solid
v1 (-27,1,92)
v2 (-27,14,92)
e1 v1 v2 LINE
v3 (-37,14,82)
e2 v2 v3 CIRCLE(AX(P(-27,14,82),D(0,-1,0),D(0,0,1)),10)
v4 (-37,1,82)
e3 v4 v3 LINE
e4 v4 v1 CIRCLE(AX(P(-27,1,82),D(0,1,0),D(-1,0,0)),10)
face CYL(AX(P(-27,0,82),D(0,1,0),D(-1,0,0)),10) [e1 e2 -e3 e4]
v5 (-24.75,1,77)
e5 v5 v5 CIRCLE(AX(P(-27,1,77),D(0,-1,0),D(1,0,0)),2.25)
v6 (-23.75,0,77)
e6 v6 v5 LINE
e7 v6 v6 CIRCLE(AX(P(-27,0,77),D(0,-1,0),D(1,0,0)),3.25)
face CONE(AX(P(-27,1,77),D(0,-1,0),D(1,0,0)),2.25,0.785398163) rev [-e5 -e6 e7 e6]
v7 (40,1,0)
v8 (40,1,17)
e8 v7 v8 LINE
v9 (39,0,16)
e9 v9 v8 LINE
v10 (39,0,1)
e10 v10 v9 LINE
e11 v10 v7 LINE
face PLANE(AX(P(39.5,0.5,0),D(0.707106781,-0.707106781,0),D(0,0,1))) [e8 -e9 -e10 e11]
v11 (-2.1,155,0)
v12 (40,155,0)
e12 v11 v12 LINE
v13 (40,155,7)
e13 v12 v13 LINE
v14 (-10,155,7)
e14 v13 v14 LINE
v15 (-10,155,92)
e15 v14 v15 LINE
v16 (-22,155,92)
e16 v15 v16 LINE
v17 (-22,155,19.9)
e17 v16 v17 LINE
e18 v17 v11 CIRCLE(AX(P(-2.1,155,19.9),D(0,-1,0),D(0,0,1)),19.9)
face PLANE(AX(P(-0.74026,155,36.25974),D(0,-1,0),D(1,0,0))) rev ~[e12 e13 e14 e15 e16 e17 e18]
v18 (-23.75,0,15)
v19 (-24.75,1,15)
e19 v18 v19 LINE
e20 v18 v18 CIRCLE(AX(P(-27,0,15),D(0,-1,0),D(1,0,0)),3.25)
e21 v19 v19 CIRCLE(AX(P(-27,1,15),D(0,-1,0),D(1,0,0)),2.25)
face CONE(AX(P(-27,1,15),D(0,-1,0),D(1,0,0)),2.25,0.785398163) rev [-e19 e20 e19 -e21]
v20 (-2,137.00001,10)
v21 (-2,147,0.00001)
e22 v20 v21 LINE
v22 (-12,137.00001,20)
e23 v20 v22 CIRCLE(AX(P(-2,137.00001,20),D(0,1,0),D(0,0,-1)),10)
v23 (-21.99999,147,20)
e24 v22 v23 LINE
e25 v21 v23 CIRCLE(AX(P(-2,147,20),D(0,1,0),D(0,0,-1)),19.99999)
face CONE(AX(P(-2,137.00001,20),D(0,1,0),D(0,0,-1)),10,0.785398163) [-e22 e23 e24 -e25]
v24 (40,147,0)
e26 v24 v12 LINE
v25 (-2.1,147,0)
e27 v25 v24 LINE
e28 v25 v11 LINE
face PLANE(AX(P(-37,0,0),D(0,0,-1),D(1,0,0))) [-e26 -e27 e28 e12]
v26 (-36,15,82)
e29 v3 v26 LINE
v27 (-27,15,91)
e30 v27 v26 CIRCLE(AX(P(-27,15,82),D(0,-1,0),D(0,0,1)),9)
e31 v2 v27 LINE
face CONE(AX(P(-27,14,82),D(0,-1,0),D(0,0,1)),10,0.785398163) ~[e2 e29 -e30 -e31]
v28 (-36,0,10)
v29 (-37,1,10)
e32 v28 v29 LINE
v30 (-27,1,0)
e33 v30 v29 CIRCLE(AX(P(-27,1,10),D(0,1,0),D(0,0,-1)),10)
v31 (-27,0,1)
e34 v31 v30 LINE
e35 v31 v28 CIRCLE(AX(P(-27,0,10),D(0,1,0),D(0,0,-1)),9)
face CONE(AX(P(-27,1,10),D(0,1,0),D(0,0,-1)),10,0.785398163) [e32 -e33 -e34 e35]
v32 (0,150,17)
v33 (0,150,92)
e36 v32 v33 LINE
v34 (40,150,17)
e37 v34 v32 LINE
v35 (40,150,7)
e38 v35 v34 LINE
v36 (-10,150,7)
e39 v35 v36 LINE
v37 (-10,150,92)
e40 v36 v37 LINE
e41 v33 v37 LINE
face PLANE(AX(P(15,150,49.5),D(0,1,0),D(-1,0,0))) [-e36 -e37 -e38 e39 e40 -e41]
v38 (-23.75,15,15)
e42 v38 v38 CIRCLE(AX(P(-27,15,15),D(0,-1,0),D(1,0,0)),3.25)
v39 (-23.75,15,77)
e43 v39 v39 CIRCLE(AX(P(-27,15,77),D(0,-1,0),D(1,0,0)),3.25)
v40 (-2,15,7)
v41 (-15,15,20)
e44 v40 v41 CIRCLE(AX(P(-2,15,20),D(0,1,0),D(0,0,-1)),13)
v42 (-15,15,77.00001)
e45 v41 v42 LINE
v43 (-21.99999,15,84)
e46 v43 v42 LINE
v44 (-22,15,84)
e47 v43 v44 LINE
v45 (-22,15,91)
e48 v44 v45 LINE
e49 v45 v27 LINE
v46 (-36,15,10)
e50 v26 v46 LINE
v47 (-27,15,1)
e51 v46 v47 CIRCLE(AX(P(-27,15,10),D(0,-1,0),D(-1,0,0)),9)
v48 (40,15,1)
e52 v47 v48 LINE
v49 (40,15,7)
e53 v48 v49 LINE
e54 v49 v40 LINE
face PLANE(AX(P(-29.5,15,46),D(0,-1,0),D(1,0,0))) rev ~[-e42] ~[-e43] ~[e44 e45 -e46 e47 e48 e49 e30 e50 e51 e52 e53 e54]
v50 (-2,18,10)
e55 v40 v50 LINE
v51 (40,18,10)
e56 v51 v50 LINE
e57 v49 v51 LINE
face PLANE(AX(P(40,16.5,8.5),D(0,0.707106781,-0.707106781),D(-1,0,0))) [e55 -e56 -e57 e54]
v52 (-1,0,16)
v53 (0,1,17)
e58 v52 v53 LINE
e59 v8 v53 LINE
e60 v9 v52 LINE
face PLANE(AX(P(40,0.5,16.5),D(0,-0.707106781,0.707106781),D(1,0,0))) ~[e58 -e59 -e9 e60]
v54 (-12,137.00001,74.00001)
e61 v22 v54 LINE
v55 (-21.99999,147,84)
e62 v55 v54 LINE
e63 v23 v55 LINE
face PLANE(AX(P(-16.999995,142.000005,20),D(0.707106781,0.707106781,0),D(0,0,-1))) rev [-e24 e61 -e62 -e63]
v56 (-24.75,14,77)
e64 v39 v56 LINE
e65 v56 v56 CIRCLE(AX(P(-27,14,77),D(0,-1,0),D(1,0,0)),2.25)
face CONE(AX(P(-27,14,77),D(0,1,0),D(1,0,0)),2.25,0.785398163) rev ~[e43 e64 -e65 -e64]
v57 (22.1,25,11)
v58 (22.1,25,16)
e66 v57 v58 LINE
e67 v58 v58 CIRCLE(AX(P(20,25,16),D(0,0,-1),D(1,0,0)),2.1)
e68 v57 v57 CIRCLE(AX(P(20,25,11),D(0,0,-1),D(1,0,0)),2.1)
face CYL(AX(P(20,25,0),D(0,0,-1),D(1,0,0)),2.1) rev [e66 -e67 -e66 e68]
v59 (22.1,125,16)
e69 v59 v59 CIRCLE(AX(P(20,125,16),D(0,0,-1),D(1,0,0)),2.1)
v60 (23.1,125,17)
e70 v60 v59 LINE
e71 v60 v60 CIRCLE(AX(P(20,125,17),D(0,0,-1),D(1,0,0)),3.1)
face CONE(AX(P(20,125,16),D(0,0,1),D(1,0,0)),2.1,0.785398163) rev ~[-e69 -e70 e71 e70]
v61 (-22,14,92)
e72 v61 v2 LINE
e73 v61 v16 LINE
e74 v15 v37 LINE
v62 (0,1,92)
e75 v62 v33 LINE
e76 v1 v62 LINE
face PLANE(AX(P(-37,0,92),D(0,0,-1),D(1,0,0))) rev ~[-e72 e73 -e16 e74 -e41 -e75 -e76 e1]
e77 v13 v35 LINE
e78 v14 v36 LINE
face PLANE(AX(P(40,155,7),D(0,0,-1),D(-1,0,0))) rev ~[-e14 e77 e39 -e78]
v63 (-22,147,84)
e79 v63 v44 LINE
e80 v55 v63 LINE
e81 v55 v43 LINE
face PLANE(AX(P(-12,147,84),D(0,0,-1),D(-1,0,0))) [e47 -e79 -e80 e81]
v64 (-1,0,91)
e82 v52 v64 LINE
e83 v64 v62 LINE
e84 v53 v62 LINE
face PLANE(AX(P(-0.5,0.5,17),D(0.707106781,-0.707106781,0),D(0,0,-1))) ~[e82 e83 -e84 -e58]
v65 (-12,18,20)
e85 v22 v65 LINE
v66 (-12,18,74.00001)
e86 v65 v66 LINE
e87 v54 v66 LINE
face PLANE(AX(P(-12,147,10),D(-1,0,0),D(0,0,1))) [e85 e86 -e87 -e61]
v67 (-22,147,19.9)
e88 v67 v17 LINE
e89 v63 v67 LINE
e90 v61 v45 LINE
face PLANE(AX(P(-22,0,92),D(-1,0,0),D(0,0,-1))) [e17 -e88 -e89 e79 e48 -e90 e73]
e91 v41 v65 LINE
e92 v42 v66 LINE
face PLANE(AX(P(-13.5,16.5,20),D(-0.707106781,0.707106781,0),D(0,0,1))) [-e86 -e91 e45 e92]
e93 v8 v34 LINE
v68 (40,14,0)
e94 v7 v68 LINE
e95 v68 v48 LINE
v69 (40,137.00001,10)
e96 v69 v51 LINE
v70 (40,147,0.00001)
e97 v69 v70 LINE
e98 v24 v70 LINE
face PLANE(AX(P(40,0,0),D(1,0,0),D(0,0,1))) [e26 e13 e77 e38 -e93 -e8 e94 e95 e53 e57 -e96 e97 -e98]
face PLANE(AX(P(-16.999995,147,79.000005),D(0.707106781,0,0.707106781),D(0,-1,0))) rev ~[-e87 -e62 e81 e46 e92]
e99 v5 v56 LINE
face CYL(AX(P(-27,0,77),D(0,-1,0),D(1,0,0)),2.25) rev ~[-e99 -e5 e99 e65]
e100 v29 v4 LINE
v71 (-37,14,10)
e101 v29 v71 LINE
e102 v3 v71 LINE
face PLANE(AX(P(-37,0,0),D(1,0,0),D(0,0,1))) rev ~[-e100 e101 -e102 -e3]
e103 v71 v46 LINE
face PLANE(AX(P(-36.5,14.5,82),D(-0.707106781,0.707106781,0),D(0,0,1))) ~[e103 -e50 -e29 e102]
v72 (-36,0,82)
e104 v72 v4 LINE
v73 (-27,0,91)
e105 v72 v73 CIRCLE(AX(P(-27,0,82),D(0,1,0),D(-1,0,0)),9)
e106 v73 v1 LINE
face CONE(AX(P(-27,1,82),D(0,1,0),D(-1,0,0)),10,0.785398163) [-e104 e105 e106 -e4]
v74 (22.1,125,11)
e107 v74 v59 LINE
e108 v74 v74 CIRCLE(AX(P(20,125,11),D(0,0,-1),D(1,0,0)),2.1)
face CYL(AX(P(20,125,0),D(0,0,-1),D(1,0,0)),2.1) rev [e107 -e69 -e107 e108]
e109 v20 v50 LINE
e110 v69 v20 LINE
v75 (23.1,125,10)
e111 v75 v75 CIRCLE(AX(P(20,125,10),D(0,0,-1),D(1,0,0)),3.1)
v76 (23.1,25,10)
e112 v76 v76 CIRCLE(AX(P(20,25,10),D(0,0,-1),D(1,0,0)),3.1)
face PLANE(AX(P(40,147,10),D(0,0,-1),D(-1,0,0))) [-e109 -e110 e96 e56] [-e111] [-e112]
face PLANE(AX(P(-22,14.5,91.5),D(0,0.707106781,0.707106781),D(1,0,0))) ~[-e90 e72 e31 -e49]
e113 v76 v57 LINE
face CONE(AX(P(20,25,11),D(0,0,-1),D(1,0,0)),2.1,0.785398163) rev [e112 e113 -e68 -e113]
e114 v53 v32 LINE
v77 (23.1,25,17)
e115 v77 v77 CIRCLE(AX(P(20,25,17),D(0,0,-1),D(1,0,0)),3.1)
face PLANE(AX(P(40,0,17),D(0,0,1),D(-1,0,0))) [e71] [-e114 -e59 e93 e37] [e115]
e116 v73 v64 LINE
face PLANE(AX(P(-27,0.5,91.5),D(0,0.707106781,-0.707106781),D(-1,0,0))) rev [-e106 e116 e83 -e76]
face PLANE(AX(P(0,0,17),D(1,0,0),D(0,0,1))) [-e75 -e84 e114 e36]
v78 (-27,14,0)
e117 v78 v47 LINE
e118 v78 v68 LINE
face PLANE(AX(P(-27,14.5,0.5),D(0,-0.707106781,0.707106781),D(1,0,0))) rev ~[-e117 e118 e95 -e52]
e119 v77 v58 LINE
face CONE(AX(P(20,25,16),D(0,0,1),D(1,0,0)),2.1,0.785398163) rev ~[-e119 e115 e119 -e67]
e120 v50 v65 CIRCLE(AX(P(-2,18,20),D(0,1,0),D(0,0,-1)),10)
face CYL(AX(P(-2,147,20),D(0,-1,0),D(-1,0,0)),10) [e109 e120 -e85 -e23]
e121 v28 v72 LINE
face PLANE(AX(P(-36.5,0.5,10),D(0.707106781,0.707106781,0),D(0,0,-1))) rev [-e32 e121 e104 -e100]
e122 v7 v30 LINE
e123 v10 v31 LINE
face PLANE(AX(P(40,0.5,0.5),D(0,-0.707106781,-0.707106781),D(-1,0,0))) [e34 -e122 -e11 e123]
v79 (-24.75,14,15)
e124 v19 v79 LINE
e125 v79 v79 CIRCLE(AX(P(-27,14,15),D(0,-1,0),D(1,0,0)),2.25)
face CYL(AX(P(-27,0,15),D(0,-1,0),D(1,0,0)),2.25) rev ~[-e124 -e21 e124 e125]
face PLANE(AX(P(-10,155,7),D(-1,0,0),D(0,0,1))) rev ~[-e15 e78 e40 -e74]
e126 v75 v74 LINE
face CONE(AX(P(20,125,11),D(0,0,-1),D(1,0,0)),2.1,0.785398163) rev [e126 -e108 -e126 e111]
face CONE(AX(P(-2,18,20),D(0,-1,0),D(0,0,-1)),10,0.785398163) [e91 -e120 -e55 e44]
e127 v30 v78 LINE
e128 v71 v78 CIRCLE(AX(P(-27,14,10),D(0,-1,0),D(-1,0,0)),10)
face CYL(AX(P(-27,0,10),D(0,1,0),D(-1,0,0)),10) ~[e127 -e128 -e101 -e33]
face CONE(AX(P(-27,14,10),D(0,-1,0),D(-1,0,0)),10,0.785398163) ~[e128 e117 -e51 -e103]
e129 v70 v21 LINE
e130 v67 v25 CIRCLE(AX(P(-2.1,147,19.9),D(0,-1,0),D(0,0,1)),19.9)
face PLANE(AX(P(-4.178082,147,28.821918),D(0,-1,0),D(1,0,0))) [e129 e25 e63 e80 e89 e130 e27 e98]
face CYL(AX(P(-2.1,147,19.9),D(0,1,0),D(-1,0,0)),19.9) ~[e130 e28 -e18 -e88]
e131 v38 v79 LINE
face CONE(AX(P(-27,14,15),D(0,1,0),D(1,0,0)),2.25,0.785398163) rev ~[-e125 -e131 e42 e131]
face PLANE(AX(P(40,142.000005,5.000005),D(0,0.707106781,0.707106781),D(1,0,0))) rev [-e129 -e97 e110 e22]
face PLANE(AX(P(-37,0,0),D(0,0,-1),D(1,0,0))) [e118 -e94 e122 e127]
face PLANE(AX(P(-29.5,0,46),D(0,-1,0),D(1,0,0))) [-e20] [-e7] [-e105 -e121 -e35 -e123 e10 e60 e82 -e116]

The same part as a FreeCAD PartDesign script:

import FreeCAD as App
import Part
import Sketcher
Q = App.Units.Quantity


def edges_at(feature, points):
    """Names of the edges that pass closest to the given points."""
    edges = feature.Shape.Edges
    near = lambda p: min(range(len(edges)), key=lambda i: edges[i].distToShape(Part.Vertex(*p))[0])
    return sorted({f"Edge{near(p) + 1}" for p in points})

doc = App.newDocument("Part")
body = doc.addObject("PartDesign::Body", "Body")

# Sketch on XZ plane
sketch1 = body.newObject("Sketcher::SketchObject", "Sketch")
sketch1.AttachmentSupport = (doc.getObject("XZ_Plane"), [""])
sketch1.MapMode = "FlatFace"
sketch1.addGeometry([
    Part.LineSegment(App.Vector(40, 0, 0), App.Vector(40, 17, 0)),  # 0
    Part.LineSegment(App.Vector(40, 17, 0), App.Vector(0, 17, 0)),  # 1
    Part.LineSegment(App.Vector(0, 17, 0), App.Vector(0, 92, 0)),  # 2
    Part.LineSegment(App.Vector(0, 92, 0), App.Vector(-22, 92, 0)),  # 3
    Part.LineSegment(App.Vector(-22, 92, 0), App.Vector(-22, 0, 0)),  # 4
    Part.LineSegment(App.Vector(-22, 0, 0), App.Vector(40, 0, 0)),  # 5
], False)
sketch1.addConstraint([
    Sketcher.Constraint("Coincident", 0, 2, 1, 1),
    Sketcher.Constraint("Coincident", 1, 2, 2, 1),
    Sketcher.Constraint("Coincident", 2, 2, 3, 1),
    Sketcher.Constraint("Coincident", 3, 2, 4, 1),
    Sketcher.Constraint("Coincident", 4, 2, 5, 1),
    Sketcher.Constraint("Coincident", 5, 2, 0, 1),
    Sketcher.Constraint("Vertical", 0),
    Sketcher.Constraint("Horizontal", 1),
    Sketcher.Constraint("Vertical", 2),
    Sketcher.Constraint("Horizontal", 3),
    Sketcher.Constraint("Vertical", 4),
    Sketcher.Constraint("Horizontal", 5),
    Sketcher.Constraint("PointOnObject", 1, 2, -2),
    Sketcher.Constraint("PointOnObject", 4, 2, -1),
    Sketcher.Constraint("DistanceX", 1, 2, 1, 1, Q("40 mm")),
    Sketcher.Constraint("DistanceX", 3, 2, 3, 1, Q("22 mm")),
    Sketcher.Constraint("DistanceY", 0, 1, 0, 2, Q("17 mm")),
    Sketcher.Constraint("DistanceY", 2, 1, 2, 2, Q("75 mm")),
])
pad1 = body.newObject("PartDesign::Pad", "Pad")
pad1.Profile = sketch1
pad1.Length = 155
pad1.Reversed = True

# Sketch on XZ plane
sketch2 = body.newObject("Sketcher::SketchObject", "Sketch001")
sketch2.AttachmentSupport = (doc.getObject("XZ_Plane"), [""])
sketch2.MapMode = "FlatFace"
sketch2.addGeometry([
    Part.LineSegment(App.Vector(-37, 92, 0), App.Vector(-37, 0, 0)),  # 0
    Part.LineSegment(App.Vector(-37, 0, 0), App.Vector(-22, 0, 0)),  # 1
    Part.LineSegment(App.Vector(-22, 0, 0), App.Vector(-22, 92, 0)),  # 2
    Part.LineSegment(App.Vector(-22, 92, 0), App.Vector(-37, 92, 0)),  # 3
    Part.Circle(App.Vector(-27, 15, 0), App.Vector(0, 0, 1), 2.2),  # 4
    Part.Circle(App.Vector(-27, 77, 0), App.Vector(0, 0, 1), 2.2),  # 5
], False)
sketch2.addConstraint([
    Sketcher.Constraint("Coincident", 0, 2, 1, 1),
    Sketcher.Constraint("Coincident", 1, 2, 2, 1),
    Sketcher.Constraint("Coincident", 2, 2, 3, 1),
    Sketcher.Constraint("Coincident", 3, 2, 0, 1),
    Sketcher.Constraint("Vertical", 0),
    Sketcher.Constraint("Horizontal", 1),
    Sketcher.Constraint("Vertical", 2),
    Sketcher.Constraint("Horizontal", 3),
    Sketcher.Constraint("Equal", 4, 5),
    Sketcher.Constraint("PointOnObject", 0, 2, -1),
    Sketcher.Constraint("Vertical", 4, 3, 5, 3),
    Sketcher.Constraint("Diameter", 4, Q("4.5 mm")),
    Sketcher.Constraint("DistanceX", 1, 1, 1, 2, Q("15 mm")),
    Sketcher.Constraint("DistanceY", 0, 2, 0, 1, Q("92 mm")),
    Sketcher.Constraint("DistanceX", 4, 3, -1, 1, Q("27 mm")),
    Sketcher.Constraint("DistanceY", -1, 1, 4, 3, Q("15 mm")),
    Sketcher.Constraint("DistanceY", -1, 1, 5, 3, Q("77 mm")),
    Sketcher.Constraint("DistanceX", 0, 2, -1, 1, Q("37 mm")),
])
pad2 = body.newObject("PartDesign::Pad", "Pad001")
pad2.Profile = sketch2
pad2.Length = 15
pad2.Reversed = True

# Sketch on XZ plane
sketch3 = body.newObject("Sketcher::SketchObject", "Sketch002")
sketch3.AttachmentSupport = (doc.getObject("XZ_Plane"), [""])
sketch3.MapMode = "FlatFace"
sketch3.AttachmentOffset = App.Placement(App.Vector(0, 0, -147), App.Rotation())
sketch3.addGeometry([
    Part.LineSegment(App.Vector(40, 10, 0), App.Vector(40, 0, 0)),  # 0
    Part.LineSegment(App.Vector(40, 0, 0), App.Vector(-22, 0, 0)),  # 1
    Part.LineSegment(App.Vector(-22, 0, 0), App.Vector(-22, 84, 0)),  # 2
    Part.LineSegment(App.Vector(-22, 84, 0), App.Vector(-12, 84, 0)),  # 3
    Part.LineSegment(App.Vector(-12, 84, 0), App.Vector(-12, 10, 0)),  # 4
    Part.LineSegment(App.Vector(-12, 10, 0), App.Vector(40, 10, 0)),  # 5
], False)
sketch3.addConstraint([
    Sketcher.Constraint("Coincident", 0, 2, 1, 1),
    Sketcher.Constraint("Coincident", 1, 2, 2, 1),
    Sketcher.Constraint("Coincident", 2, 2, 3, 1),
    Sketcher.Constraint("Coincident", 3, 2, 4, 1),
    Sketcher.Constraint("Coincident", 4, 2, 5, 1),
    Sketcher.Constraint("Coincident", 5, 2, 0, 1),
    Sketcher.Constraint("Vertical", 0),
    Sketcher.Constraint("Horizontal", 1),
    Sketcher.Constraint("Vertical", 2),
    Sketcher.Constraint("Horizontal", 3),
    Sketcher.Constraint("Vertical", 4),
    Sketcher.Constraint("Horizontal", 5),
    Sketcher.Constraint("PointOnObject", 0, 2, -1),
    Sketcher.Constraint("Equal", 3, 0),
    Sketcher.Constraint("DistanceX", 1, 2, 1, 1, Q("62 mm")),
    Sketcher.Constraint("DistanceX", 3, 1, 3, 2, Q("10 mm")),
    Sketcher.Constraint("DistanceY", 2, 1, 2, 2, Q("84 mm")),
    Sketcher.Constraint("DistanceX", -1, 1, 0, 2, Q("40 mm")),
])
pocket1 = body.newObject("PartDesign::Pocket", "Pocket")
pocket1.Profile = sketch3
pocket1.Length = 132
pocket1.Reversed = True
doc.recompute()

fillet = body.newObject("PartDesign::Fillet", "Fillet")
fillet.Base = (pocket1, edges_at(pocket1, [(-37, 7.5, 0), (-37, 7.5, 92), (-12, 81, 10)]))
fillet.Radius = 10
doc.recompute()

chamfer = body.newObject("PartDesign::Chamfer", "Chamfer")
chamfer.Base = (fillet, edges_at(fillet, [(-12, 81, 84), (-12, 147, 52)]))
chamfer.Size = 9.99999
doc.recompute()

fillet2 = body.newObject("PartDesign::Fillet", "Fillet001")
fillet2.Base = (chamfer, edges_at(chamfer, [(-22, 151, 0)]))
fillet2.Radius = 19.9

# Sketch on XZ plane
sketch4 = body.newObject("Sketcher::SketchObject", "Sketch003")
sketch4.AttachmentSupport = (doc.getObject("XZ_Plane"), [""])
sketch4.MapMode = "FlatFace"
sketch4.AttachmentOffset = App.Placement(App.Vector(0, 0, -155), App.Rotation())
sketch4.addGeometry([
    Part.LineSegment(App.Vector(40, 92, 0), App.Vector(40, 7, 0)),
    Part.LineSegment(App.Vector(40, 7, 0), App.Vector(-10, 7, 0)),
    Part.LineSegment(App.Vector(-10, 7, 0), App.Vector(-10, 92, 0)),
    Part.LineSegment(App.Vector(-10, 92, 0), App.Vector(40, 92, 0)),
], False)
sketch4.addConstraint([
    Sketcher.Constraint("Coincident", 0, 2, 1, 1),
    Sketcher.Constraint("Coincident", 1, 2, 2, 1),
    Sketcher.Constraint("Coincident", 2, 2, 3, 1),
    Sketcher.Constraint("Coincident", 3, 2, 0, 1),
    Sketcher.Constraint("Vertical", 0),
    Sketcher.Constraint("Horizontal", 1),
    Sketcher.Constraint("Vertical", 2),
    Sketcher.Constraint("Horizontal", 3),
    Sketcher.Constraint("DistanceX", 1, 2, 1, 1, Q("50 mm")),
    Sketcher.Constraint("DistanceY", 0, 2, 0, 1, Q("85 mm")),
    Sketcher.Constraint("DistanceX", -1, 1, 0, 2, Q("40 mm")),
    Sketcher.Constraint("DistanceY", -1, 1, 0, 2, Q("7 mm")),
])
pocket2 = body.newObject("PartDesign::Pocket", "Pocket001")
pocket2.Profile = sketch4
pocket2.Length = 5
pocket2.Reversed = True
doc.recompute()

chamfer2 = body.newObject("PartDesign::Chamfer", "Chamfer001")
chamfer2.Base = (pocket2, edges_at(pocket2, [(19, 15, 10)]))
chamfer2.Size = 3

# Sketch on XY plane
sketch5 = body.newObject("Sketcher::SketchObject", "Sketch004")
sketch5.AttachmentSupport = (doc.getObject("XY_Plane"), [""])
sketch5.MapMode = "FlatFace"
sketch5.addGeometry([
    Part.Circle(App.Vector(20, 25, 0), App.Vector(0, 0, 1), 2.1),
    Part.Circle(App.Vector(20, 125, 0), App.Vector(0, 0, 1), 2.1),
], False)
sketch5.addConstraint([
    Sketcher.Constraint("Equal", 0, 1),
    Sketcher.Constraint("Vertical", 0, 3, 1, 3),
    Sketcher.Constraint("Diameter", 0, Q("4.2 mm")),
    Sketcher.Constraint("DistanceX", -1, 1, 0, 3, Q("20 mm")),
    Sketcher.Constraint("DistanceY", -1, 1, 0, 3, Q("25 mm")),
    Sketcher.Constraint("DistanceY", -1, 1, 1, 3, Q("125 mm")),
])
pocket3 = body.newObject("PartDesign::Pocket", "Pocket002")
pocket3.Profile = sketch5
pocket3.Type = "ThroughAll"
pocket3.Reversed = True
doc.recompute()

chamfer3 = body.newObject("PartDesign::Chamfer", "Chamfer002")
chamfer3.Base = (pocket3, edges_at(pocket3, [
    (17.9, 25, 17),
    (17.9, 125, 17),
    (17.9, 125, 10),
    (17.9, 25, 10),
]))
chamfer3.Size = 1
doc.recompute()

chamfer4 = body.newObject("PartDesign::Chamfer", "Chamfer003")
chamfer4.Base = (chamfer3, edges_at(chamfer3, [
    (-13.5, 0, 92),
    (-34.071, 0, 89.071),
    (0, 0, 54.5),
    (-37, 0, 46),
    (20, 0, 17),
    (-34.071, 0, 2.929),
    (40, 0, 8.5),
    (6.5, 0, 0),
    (-29.25, 0, 15),
    (-29.25, 0, 77),
]))
chamfer4.Size = 1
doc.recompute()

chamfer5 = body.newObject("PartDesign::Chamfer", "Chamfer004")
chamfer5.Base = (chamfer4, edges_at(chamfer4, [(6.5, 15, 0), (-29.25, 15, 77), (-29.25, 15, 15)]))
chamfer5.Size = 1

doc.recompute()
